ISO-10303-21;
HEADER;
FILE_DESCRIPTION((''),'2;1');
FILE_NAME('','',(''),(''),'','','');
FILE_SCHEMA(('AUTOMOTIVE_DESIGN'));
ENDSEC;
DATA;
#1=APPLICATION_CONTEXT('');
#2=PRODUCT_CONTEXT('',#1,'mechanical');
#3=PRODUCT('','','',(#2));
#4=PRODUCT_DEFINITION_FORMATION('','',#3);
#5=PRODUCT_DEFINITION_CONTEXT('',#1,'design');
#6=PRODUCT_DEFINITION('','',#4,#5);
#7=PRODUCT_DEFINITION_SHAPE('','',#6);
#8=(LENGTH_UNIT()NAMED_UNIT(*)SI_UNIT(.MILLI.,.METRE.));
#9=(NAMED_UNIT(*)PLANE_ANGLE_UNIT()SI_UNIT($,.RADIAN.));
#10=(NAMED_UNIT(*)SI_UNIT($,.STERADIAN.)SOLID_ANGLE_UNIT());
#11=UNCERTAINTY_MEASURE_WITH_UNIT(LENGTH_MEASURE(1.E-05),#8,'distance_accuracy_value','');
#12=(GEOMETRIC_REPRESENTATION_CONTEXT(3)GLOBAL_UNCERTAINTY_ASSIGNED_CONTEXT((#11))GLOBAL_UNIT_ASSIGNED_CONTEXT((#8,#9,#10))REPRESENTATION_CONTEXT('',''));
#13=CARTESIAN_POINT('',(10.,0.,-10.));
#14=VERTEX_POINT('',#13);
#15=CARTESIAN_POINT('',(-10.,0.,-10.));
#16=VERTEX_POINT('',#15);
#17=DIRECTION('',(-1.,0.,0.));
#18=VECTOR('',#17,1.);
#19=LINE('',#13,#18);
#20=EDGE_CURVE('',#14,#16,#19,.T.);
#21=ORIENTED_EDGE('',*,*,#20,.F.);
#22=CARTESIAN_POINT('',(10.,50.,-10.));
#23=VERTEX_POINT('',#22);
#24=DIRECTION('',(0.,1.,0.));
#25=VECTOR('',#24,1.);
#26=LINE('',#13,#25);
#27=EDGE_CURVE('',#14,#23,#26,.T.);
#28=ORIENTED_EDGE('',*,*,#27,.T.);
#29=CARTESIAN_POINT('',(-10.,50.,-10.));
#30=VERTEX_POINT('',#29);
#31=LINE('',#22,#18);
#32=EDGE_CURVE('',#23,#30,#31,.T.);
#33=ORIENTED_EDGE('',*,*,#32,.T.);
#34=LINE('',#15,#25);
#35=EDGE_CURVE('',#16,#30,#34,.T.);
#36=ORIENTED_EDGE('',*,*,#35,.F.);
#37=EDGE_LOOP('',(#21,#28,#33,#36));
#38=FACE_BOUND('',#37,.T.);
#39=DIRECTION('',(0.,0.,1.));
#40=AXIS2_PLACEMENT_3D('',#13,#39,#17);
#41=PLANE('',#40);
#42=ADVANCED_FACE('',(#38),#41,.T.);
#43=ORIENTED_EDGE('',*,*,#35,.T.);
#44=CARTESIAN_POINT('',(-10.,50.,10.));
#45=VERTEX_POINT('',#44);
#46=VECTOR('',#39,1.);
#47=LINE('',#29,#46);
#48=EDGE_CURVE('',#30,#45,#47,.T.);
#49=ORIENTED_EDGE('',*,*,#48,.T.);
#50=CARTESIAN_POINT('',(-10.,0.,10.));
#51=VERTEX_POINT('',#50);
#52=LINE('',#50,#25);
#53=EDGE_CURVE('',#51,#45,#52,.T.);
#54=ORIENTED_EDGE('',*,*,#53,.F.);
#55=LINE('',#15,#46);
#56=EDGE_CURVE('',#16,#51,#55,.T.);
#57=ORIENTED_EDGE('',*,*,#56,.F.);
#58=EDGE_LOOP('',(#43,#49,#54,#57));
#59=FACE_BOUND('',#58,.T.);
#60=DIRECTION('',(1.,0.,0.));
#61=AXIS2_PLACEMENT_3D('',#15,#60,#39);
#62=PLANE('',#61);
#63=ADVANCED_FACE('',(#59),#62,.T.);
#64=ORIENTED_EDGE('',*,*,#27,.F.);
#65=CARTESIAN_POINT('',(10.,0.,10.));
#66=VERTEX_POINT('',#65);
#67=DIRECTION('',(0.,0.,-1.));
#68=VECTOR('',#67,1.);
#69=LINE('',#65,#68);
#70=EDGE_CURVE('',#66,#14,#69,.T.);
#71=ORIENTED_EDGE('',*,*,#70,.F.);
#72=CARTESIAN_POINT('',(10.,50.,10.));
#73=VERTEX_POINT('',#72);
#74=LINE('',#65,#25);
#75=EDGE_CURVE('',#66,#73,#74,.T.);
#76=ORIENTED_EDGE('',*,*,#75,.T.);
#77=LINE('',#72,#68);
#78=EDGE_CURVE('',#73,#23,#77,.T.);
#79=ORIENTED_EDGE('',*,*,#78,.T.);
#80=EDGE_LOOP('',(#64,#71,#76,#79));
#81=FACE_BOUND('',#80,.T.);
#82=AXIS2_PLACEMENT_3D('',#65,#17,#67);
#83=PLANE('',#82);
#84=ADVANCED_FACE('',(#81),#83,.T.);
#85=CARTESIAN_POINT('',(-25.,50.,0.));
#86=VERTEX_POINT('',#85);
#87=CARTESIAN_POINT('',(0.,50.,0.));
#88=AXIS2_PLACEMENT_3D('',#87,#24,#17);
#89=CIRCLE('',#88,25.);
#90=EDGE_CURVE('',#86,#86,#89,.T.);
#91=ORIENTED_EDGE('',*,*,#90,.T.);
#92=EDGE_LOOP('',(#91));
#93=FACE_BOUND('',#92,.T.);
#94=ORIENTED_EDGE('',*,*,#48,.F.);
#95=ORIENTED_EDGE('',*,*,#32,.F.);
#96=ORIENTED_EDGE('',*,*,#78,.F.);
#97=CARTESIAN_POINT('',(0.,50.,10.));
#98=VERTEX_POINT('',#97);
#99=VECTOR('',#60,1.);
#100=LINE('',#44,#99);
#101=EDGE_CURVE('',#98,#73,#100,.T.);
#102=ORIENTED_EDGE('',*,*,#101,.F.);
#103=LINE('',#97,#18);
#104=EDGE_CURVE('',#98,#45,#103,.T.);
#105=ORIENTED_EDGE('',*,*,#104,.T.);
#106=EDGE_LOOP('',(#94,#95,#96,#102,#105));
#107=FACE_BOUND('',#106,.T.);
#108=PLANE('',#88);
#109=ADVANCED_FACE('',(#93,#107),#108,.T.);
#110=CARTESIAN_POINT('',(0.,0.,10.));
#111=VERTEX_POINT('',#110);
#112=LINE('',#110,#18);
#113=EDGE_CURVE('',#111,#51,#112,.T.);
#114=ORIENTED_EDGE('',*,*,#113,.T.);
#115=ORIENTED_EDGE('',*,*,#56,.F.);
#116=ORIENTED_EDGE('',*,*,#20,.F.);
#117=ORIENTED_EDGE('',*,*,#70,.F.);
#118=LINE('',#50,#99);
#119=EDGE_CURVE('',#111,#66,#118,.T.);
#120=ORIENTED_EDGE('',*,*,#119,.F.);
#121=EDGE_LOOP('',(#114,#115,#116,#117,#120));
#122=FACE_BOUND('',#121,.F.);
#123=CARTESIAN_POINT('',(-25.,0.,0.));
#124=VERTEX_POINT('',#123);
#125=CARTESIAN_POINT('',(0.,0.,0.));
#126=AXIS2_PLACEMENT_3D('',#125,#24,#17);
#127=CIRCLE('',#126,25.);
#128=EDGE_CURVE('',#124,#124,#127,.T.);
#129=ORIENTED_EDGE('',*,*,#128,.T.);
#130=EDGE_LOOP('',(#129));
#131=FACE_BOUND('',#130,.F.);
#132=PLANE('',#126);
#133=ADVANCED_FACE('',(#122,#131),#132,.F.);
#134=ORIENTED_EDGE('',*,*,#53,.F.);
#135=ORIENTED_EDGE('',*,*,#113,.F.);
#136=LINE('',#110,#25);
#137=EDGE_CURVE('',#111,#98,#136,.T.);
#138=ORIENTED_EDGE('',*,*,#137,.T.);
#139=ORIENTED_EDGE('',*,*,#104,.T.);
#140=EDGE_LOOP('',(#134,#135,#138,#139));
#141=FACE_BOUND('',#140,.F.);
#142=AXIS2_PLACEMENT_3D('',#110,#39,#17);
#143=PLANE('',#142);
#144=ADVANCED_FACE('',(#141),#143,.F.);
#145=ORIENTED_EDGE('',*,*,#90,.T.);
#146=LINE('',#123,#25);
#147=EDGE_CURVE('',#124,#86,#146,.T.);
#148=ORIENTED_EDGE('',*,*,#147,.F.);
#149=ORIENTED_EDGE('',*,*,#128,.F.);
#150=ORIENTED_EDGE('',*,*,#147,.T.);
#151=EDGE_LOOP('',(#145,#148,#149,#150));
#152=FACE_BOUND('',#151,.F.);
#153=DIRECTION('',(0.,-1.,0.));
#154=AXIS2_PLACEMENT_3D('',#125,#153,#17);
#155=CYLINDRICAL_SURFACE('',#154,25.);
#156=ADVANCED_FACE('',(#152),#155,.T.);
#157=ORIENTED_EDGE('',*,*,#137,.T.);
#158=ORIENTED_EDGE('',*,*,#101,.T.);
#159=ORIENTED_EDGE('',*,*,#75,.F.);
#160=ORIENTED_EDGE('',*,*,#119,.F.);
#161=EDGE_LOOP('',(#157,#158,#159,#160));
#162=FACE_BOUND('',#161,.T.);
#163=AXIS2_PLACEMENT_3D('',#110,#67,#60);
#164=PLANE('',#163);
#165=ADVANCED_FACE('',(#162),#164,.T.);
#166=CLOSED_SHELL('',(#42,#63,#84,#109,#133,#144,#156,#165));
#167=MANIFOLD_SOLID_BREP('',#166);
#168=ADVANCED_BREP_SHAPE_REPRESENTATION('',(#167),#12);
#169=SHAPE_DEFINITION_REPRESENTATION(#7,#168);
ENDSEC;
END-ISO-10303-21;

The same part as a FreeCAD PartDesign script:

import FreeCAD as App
import Part
import Sketcher
from FreeCAD import Vector

doc = App.newDocument("Part")
body = doc.addObject("PartDesign::Body", "Body")

sketch1 = body.newObject("Sketcher::SketchObject", "Sketch")
sketch1.AttachmentSupport = (doc.getObject("XZ_Plane"), [""])
sketch1.MapMode = "FlatFace"
sketch1.addGeometry([
    Part.Circle(Vector(0, 0, 0), Vector(0, 0, 1), 25),
    Part.LineSegment(Vector(10, 10, 0), Vector(-10, 10, 0)),
    Part.LineSegment(Vector(-10, 10, 0), Vector(-10, -10, 0)),
    Part.LineSegment(Vector(-10, -10, 0), Vector(10, -10, 0)),
    Part.LineSegment(Vector(10, -10, 0), Vector(10, 10, 0)),
], False)
sketch1.addConstraint([
    Sketcher.Constraint("Coincident", 1, 2, 2, 1),
    Sketcher.Constraint("Coincident", 2, 2, 3, 1),
    Sketcher.Constraint("Coincident", 3, 2, 4, 1),
    Sketcher.Constraint("Coincident", 4, 2, 1, 1),
    Sketcher.Constraint("Horizontal", 1),
    Sketcher.Constraint("Vertical", 2),
    Sketcher.Constraint("Horizontal", 3),
    Sketcher.Constraint("Vertical", 4),
    Sketcher.Constraint("Coincident", 0, 3, -1, 1),
    Sketcher.Constraint("Symmetric", 1, 2, 3, 2, -1, 1),
    Sketcher.Constraint("Equal", 3, 2),
    Sketcher.Constraint("Diameter", 0, 50.0),
    Sketcher.Constraint("DistanceX", 1, 2, 1, 1, 20.0),
])
pad1 = body.newObject("PartDesign::Pad", "Pad")
pad1.Profile = sketch1
pad1.Length = 50
pad1.Reversed = True

doc.recompute()
